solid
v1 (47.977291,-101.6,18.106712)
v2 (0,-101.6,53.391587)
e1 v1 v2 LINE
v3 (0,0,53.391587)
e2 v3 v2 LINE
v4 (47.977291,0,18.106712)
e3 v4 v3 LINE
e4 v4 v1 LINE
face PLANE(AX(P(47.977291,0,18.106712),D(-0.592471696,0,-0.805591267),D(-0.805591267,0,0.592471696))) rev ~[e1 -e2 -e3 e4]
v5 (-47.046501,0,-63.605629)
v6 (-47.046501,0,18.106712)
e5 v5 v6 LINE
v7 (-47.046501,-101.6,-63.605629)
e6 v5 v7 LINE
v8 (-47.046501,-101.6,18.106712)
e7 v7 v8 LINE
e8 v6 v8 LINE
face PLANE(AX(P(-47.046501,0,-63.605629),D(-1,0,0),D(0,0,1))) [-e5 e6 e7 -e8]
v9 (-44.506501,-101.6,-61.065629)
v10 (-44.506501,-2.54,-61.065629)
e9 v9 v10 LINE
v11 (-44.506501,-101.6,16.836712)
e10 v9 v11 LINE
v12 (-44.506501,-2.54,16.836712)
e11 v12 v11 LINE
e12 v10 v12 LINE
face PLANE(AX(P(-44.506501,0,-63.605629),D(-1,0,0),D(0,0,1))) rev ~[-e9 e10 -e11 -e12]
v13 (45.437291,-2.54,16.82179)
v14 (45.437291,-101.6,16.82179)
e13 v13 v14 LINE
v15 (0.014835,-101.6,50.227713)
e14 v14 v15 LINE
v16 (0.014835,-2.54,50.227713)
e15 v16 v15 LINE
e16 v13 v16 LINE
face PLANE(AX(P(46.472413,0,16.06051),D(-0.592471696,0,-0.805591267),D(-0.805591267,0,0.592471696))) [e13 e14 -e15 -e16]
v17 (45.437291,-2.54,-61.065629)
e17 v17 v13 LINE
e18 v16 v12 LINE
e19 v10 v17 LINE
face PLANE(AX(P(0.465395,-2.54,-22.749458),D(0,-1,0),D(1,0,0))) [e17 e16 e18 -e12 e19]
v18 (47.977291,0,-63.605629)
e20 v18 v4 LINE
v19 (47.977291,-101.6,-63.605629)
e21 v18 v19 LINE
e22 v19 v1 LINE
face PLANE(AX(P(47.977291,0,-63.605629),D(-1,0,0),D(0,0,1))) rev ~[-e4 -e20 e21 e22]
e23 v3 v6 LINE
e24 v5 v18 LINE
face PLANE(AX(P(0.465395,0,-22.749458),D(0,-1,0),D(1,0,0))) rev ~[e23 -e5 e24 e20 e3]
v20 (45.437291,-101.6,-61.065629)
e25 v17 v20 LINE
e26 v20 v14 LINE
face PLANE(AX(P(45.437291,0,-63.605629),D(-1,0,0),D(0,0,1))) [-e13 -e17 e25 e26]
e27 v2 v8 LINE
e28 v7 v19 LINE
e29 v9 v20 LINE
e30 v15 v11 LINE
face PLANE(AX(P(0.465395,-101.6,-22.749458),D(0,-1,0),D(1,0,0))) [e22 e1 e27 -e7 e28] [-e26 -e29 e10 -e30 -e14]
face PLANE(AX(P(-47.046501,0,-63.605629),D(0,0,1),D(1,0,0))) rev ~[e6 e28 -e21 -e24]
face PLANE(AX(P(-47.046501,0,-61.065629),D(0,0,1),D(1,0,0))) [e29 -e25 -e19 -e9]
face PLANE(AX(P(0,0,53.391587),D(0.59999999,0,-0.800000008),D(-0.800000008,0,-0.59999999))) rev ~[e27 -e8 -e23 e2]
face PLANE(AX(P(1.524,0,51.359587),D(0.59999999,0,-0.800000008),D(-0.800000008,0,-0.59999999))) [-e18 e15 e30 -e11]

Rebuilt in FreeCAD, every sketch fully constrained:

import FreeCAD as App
import Part
import Sketcher

V = App.Vector
Q = App.Units.Quantity


def faces_at(feature, points):
    """Names of the faces that lie closest to the given points."""
    faces = feature.Shape.Faces
    near = lambda p: min(range(len(faces)), key=lambda i: faces[i].distToShape(Part.Vertex(*p))[0])
    return sorted({f"Face{near(p) + 1}" for p in points})


def add_polygon(sketch, points):
    """Adds a closed chain of lines whose ends are joined by coincident constraints."""
    first, n = sketch.GeometryCount, len(points)
    for a, b in zip(points, points[1:] + points[:1]):
        sketch.addGeometry(Part.LineSegment(App.Vector(*a, 0), App.Vector(*b, 0)), False)
    for i in range(n):
        sketch.addConstraint(Sketcher.Constraint("Coincident", first + i, 2, first + (i + 1) % n, 1))

doc = App.newDocument("Part")
body = doc.addObject("PartDesign::Body", "Body")

# Sketch on XZ plane
sketch1 = body.newObject("Sketcher::SketchObject", "Sketch")
sketch1.AttachmentSupport = (doc.getObject("XZ_Plane"), [""])
sketch1.MapMode = "FlatFace"
add_polygon(sketch1, [(-47.046501, 18.106712), (-47.046501, -63.605629), (47.977291, -63.605629), (47.977291, 18.106712), (0, 53.391587)])  # lines 0-4
sketch1.addConstraint([
    Sketcher.Constraint("Vertical", 0),
    Sketcher.Constraint("Horizontal", 1),
    Sketcher.Constraint("Vertical", 2),
    Sketcher.Constraint("PointOnObject", 3, 2, -2),
    Sketcher.Constraint("Horizontal", 2, 2, 4, 2),
    Sketcher.Constraint("Distance", 3, Q("2.3446999 in")),
    Sketcher.Constraint("DistanceY", 0, 2, 0, 1, Q("81.712341 mm")),
    Sketcher.Constraint("DistanceX", 0, 2, -1, 1, Q("47.046501 mm")),
    Sketcher.Constraint("DistanceX", 1, 1, 1, 2, Q("95.023792 mm")),
    Sketcher.Constraint("DistanceY", 0, 2, -1, 1, Q("63.605629 mm")),
])
pad1 = body.newObject("PartDesign::Pad", "Pad")
pad1.Profile = sketch1
pad1.Length = Q("4 in")
doc.recompute()

thickness = body.newObject("PartDesign::Thickness", "Thickness")
thickness.Base = (pad1, faces_at(pad1, [(0.465, -101.6, -5.107)]))
thickness.Value = Q("0.1 in")
thickness.Reversed = True
thickness.Join = "Arc"

doc.recompute()
